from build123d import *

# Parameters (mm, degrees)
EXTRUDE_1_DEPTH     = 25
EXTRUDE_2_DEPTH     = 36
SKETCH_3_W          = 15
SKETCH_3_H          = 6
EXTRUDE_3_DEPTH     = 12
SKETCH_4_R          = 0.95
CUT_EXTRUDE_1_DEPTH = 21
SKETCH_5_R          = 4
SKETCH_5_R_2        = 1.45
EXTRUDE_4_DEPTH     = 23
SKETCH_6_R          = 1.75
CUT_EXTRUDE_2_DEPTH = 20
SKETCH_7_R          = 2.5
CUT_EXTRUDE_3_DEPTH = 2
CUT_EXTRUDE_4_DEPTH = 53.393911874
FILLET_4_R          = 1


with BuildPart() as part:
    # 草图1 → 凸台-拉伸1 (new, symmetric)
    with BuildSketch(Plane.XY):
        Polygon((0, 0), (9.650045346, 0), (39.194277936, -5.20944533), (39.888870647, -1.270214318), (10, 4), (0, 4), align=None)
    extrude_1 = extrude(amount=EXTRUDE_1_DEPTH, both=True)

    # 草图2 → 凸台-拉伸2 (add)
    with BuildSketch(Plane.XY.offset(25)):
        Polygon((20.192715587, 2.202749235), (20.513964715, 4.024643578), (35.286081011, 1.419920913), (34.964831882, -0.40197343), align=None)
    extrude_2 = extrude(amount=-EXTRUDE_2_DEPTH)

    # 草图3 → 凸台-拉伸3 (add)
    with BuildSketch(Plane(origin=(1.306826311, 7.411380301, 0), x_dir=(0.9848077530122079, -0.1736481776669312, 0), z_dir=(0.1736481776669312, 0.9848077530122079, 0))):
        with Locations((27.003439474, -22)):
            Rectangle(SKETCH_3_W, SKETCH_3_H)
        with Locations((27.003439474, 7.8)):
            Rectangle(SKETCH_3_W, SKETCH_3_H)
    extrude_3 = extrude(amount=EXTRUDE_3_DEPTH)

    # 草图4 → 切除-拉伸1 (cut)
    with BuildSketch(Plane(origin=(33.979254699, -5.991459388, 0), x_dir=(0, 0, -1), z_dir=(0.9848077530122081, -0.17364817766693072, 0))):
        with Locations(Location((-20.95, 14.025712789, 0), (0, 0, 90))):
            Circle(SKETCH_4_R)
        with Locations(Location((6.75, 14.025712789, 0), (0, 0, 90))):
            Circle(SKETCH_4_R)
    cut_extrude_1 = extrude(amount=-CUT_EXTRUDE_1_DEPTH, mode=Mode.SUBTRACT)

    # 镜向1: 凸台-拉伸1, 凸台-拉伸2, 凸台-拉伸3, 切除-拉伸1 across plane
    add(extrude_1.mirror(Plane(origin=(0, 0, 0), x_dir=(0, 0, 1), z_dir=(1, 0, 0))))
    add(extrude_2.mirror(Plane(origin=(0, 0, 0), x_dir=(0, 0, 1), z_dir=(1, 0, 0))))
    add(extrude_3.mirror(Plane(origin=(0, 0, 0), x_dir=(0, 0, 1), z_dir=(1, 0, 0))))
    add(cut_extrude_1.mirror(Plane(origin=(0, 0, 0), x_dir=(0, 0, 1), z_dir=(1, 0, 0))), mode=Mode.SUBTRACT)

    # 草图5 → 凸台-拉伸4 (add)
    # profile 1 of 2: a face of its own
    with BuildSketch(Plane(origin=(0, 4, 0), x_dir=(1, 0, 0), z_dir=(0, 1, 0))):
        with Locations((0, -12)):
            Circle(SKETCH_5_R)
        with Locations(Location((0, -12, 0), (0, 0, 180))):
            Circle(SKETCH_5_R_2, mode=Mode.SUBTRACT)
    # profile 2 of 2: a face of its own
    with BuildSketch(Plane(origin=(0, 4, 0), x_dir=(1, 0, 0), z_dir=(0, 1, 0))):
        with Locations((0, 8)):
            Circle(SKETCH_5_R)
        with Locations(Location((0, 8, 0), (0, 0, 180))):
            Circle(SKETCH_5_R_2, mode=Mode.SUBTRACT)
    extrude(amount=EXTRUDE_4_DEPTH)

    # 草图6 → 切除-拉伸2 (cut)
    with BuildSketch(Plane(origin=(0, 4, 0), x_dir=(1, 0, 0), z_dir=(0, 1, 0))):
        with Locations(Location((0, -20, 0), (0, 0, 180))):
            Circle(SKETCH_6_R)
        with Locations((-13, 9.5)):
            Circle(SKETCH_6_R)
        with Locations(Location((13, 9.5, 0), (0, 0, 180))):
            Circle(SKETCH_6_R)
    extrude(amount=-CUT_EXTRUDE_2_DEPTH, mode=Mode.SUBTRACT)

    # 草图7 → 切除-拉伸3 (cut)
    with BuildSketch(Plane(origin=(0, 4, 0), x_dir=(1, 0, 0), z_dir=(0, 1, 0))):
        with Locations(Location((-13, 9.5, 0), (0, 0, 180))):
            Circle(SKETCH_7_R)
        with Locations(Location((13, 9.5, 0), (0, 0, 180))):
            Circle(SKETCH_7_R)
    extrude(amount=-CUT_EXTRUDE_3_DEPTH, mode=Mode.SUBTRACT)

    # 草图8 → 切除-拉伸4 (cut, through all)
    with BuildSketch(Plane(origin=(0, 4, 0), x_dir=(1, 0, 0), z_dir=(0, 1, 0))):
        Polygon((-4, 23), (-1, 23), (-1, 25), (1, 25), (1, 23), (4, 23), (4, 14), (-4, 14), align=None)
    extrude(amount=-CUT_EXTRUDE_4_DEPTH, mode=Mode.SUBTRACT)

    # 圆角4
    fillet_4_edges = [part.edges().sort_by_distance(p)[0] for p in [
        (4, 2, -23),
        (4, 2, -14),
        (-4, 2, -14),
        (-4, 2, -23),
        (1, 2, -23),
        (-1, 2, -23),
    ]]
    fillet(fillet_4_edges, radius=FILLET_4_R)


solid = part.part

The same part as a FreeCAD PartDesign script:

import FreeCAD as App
import Part
import Sketcher
Q = App.Units.Quantity


def edges_at(feature, points):
    """Names of the edges that pass closest to the given points."""
    edges = feature.Shape.Edges
    near = lambda p: min(range(len(edges)), key=lambda i: edges[i].distToShape(Part.Vertex(*p))[0])
    return sorted({f"Edge{near(p) + 1}" for p in points})

doc = App.newDocument("Part")
body = doc.addObject("PartDesign::Body", "Body")

sketch1 = body.newObject("Sketcher::SketchObject", "Sketch")
sketch1.AttachmentSupport = (doc.getObject("XY_Plane"), [""])
sketch1.MapMode = "FlatFace"
sketch1.addGeometry(Part.LineSegment(App.Vector(0, 0, 0), App.Vector(9.7, 0, 0)), False)
sketch1.addGeometry(Part.LineSegment(App.Vector(9.7, 0, 0), App.Vector(39.2, -5.2, 0)), False)
sketch1.addGeometry(Part.LineSegment(App.Vector(39.2, -5.2, 0), App.Vector(39.9, -1.3, 0)), False)
sketch1.addGeometry(Part.LineSegment(App.Vector(39.9, -1.3, 0), App.Vector(10, 4, 0)), False)
sketch1.addGeometry(Part.LineSegment(App.Vector(10, 4, 0), App.Vector(0, 4, 0)), False)
sketch1.addGeometry(Part.LineSegment(App.Vector(0, 4, 0), App.Vector(0, 0, 0)), False)
sketch1.addConstraint(Sketcher.Constraint("Coincident", 0, 2, 1, 1))
sketch1.addConstraint(Sketcher.Constraint("Coincident", 1, 2, 2, 1))
sketch1.addConstraint(Sketcher.Constraint("Coincident", 2, 2, 3, 1))
sketch1.addConstraint(Sketcher.Constraint("Coincident", 3, 2, 4, 1))
sketch1.addConstraint(Sketcher.Constraint("Coincident", 4, 2, 5, 1))
sketch1.addConstraint(Sketcher.Constraint("Coincident", 5, 2, 0, 1))
sketch1.addConstraint(Sketcher.Constraint("Horizontal", 0))
sketch1.addConstraint(Sketcher.Constraint("Horizontal", 4))
sketch1.addConstraint(Sketcher.Constraint("Vertical", 5))
sketch1.addConstraint(Sketcher.Constraint("Coincident", 5, 2, -1, 1))
sketch1.addConstraint(Sketcher.Constraint("Perpendicular", 1, 2))
sketch1.addConstraint(Sketcher.Constraint("Perpendicular", 2, 3))
sketch1.addConstraint(Sketcher.Constraint("DistanceX", 4, 2, 4, 1, Q("10 mm")))
sketch1.addConstraint(Sketcher.Constraint("DistanceY", 5, 2, 5, 1, Q("4 mm")))
sketch1.addConstraint(Sketcher.Constraint("Angle", 1, Q("-10 deg")))
sketch1.addConstraint(Sketcher.Constraint("Distance", 1, Q("30 mm")))
sketch1.addConstraint(Sketcher.Constraint("Distance", 2, Q("4 mm")))
pad1 = body.newObject("PartDesign::Pad", "Pad")
pad1.Profile = sketch1
pad1.Length = 50
pad1.Midplane = True

sketch2 = body.newObject("Sketcher::SketchObject", "Sketch001")
sketch2.AttachmentSupport = (doc.getObject("XY_Plane"), [""])
sketch2.MapMode = "FlatFace"
sketch2.AttachmentOffset = App.Placement(App.Vector(0, 0, 25), App.Rotation())
sketch2.addGeometry(Part.LineSegment(App.Vector(20.5, 4, 0), App.Vector(20.2, 2.2, 0)), False)
sketch2.addGeometry(Part.LineSegment(App.Vector(20.2, 2.2, 0), App.Vector(35, -0.4, 0)), False)
sketch2.addGeometry(Part.LineSegment(App.Vector(35, -0.4, 0), App.Vector(35.3, 1.4, 0)), False)
sketch2.addGeometry(Part.LineSegment(App.Vector(35.3, 1.4, 0), App.Vector(20.5, 4, 0)), False)
sketch2.addConstraint(Sketcher.Constraint("Coincident", 0, 2, 1, 1))
sketch2.addConstraint(Sketcher.Constraint("Coincident", 1, 2, 2, 1))
sketch2.addConstraint(Sketcher.Constraint("Coincident", 2, 2, 3, 1))
sketch2.addConstraint(Sketcher.Constraint("Coincident", 3, 2, 0, 1))
sketch2.addConstraint(Sketcher.Constraint("Perpendicular", 0, 1))
sketch2.addConstraint(Sketcher.Constraint("Perpendicular", 1, 2))
sketch2.addConstraint(Sketcher.Constraint("Perpendicular", 2, 3))
sketch2.addConstraint(Sketcher.Constraint("Angle", 0, Q("-100 deg")))
sketch2.addConstraint(Sketcher.Constraint("Distance", 1, Q("15 mm")))
sketch2.addConstraint(Sketcher.Constraint("Distance", 0, Q("1.85 mm")))
sketch2.addConstraint(Sketcher.Constraint("DistanceY", -1, 1, 0, 2, Q("2.202749 mm")))
sketch2.addConstraint(Sketcher.Constraint("DistanceX", -1, 1, 1, 2, Q("34.964832 mm")))
pad2 = body.newObject("PartDesign::Pad", "Pad001")
pad2.Profile = sketch2
pad2.Length = 36
pad2.Reversed = True

sketch3 = body.newObject("Sketcher::SketchObject", "Sketch002")
sketch3.Placement = App.Placement(App.Vector(1.306826, 7.41138, 0), App.Rotation(App.Vector(0.984807753, -0.173648178, 0), App.Vector(0, 0, -1), App.Vector(0.173648178, 0.984807753, 0), "ZXY"))
sketch3.addGeometry(Part.LineSegment(App.Vector(20, -19, 0), App.Vector(20, -25, 0)), False)
sketch3.addGeometry(Part.LineSegment(App.Vector(20, -25, 0), App.Vector(35, -25, 0)), False)
sketch3.addGeometry(Part.LineSegment(App.Vector(35, -25, 0), App.Vector(35, -19, 0)), False)
sketch3.addGeometry(Part.LineSegment(App.Vector(35, -19, 0), App.Vector(20, -19, 0)), False)
sketch3.addGeometry(Part.LineSegment(App.Vector(20, 11, 0), App.Vector(20, 5, 0)), False)
sketch3.addGeometry(Part.LineSegment(App.Vector(20, 5, 0), App.Vector(35, 5, 0)), False)
sketch3.addGeometry(Part.LineSegment(App.Vector(35, 5, 0), App.Vector(35, 11, 0)), False)
sketch3.addGeometry(Part.LineSegment(App.Vector(35, 11, 0), App.Vector(20, 11, 0)), False)
sketch3.addConstraint(Sketcher.Constraint("Coincident", 0, 2, 1, 1))
sketch3.addConstraint(Sketcher.Constraint("Coincident", 1, 2, 2, 1))
sketch3.addConstraint(Sketcher.Constraint("Coincident", 2, 2, 3, 1))
sketch3.addConstraint(Sketcher.Constraint("Coincident", 3, 2, 0, 1))
sketch3.addConstraint(Sketcher.Constraint("Coincident", 4, 2, 5, 1))
sketch3.addConstraint(Sketcher.Constraint("Coincident", 5, 2, 6, 1))
sketch3.addConstraint(Sketcher.Constraint("Coincident", 6, 2, 7, 1))
sketch3.addConstraint(Sketcher.Constraint("Coincident", 7, 2, 4, 1))
sketch3.addConstraint(Sketcher.Constraint("Vertical", 0))
sketch3.addConstraint(Sketcher.Constraint("Horizontal", 1))
sketch3.addConstraint(Sketcher.Constraint("Vertical", 2))
sketch3.addConstraint(Sketcher.Constraint("Horizontal", 3))
sketch3.addConstraint(Sketcher.Constraint("Vertical", 4))
sketch3.addConstraint(Sketcher.Constraint("Horizontal", 5))
sketch3.addConstraint(Sketcher.Constraint("Vertical", 6))
sketch3.addConstraint(Sketcher.Constraint("Horizontal", 7))
sketch3.addConstraint(Sketcher.Constraint("Vertical", 3, 2, 4, 2))
sketch3.addConstraint(Sketcher.Constraint("Vertical", 2, 2, 5, 2))
sketch3.addConstraint(Sketcher.Constraint("Equal", 2, 4))
sketch3.addConstraint(Sketcher.Constraint("DistanceX", 1, 1, 1, 2, Q("15 mm")))
sketch3.addConstraint(Sketcher.Constraint("DistanceY", 0, 2, 0, 1, Q("6 mm")))
sketch3.addConstraint(Sketcher.Constraint("DistanceY", 0, 2, -1, 1, Q("25 mm")))
sketch3.addConstraint(Sketcher.Constraint("DistanceY", -1, 1, 4, 2, Q("4.8 mm")))
sketch3.addConstraint(Sketcher.Constraint("DistanceX", -1, 1, 0, 2, Q("19.503439 mm")))
pad3 = body.newObject("PartDesign::Pad", "Pad002")
pad3.Profile = sketch3
pad3.Length = 12

sketch4 = body.newObject("Sketcher::SketchObject", "Sketch003")
sketch4.Placement = App.Placement(App.Vector(33.979255, -5.991459, 0), App.Rotation(App.Vector(0, 0, -1), App.Vector(0.173648178, 0.984807753, 0), App.Vector(0.984807753, -0.173648178, 0), "ZXY"))
sketch4.addGeometry(Part.Circle(App.Vector(-20.9, 14, 0), App.Vector(0, 0, 1), 0.9), False)
sketch4.addGeometry(Part.Circle(App.Vector(6.8, 14, 0), App.Vector(0, 0, 1), 0.9), False)
sketch4.addConstraint(Sketcher.Constraint("Equal", 0, 1))
sketch4.addConstraint(Sketcher.Constraint("Horizontal", 0, 3, 1, 3))
sketch4.addConstraint(Sketcher.Constraint("Diameter", 0, Q("1.9 mm")))
sketch4.addConstraint(Sketcher.Constraint("DistanceX", 0, 3, 1, 3, Q("27.7 mm")))
sketch4.addConstraint(Sketcher.Constraint("DistanceX", 0, 3, -1, 1, Q("20.95 mm")))
sketch4.addConstraint(Sketcher.Constraint("DistanceY", -1, 1, 0, 3, Q("14.025713 mm")))
pocket1 = body.newObject("PartDesign::Pocket", "Pocket")
pocket1.Profile = sketch4
pocket1.Length = 21
doc.recompute()

mirrored = body.newObject("PartDesign::Mirrored", "Mirrored")
mirrored.Originals = [pad1, pad2, pad3, pocket1]
mirrored.MirrorPlane = (doc.getObject("YZ_Plane"), [""])
body.Tip = mirrored

sketch5 = body.newObject("Sketcher::SketchObject", "Sketch004")
sketch5.AttachmentSupport = (doc.getObject("XZ_Plane"), [""])
sketch5.MapMode = "FlatFace"
sketch5.AttachmentOffset = App.Placement(App.Vector(0, 0, -4), App.Rotation())
sketch5.addGeometry(Part.Circle(App.Vector(0, 12, 0), App.Vector(0, 0, 1), 4), False)
sketch5.addGeometry(Part.Circle(App.Vector(0, 12, 0), App.Vector(0, 0, 1), 1.4), False)
sketch5.addGeometry(Part.Circle(App.Vector(0, -8, 0), App.Vector(0, 0, 1), 4), False)
sketch5.addGeometry(Part.Circle(App.Vector(0, -8, 0), App.Vector(0, 0, 1), 1.4), False)
sketch5.addConstraint(Sketcher.Constraint("Coincident", 1, 3, 0, 3))
sketch5.addConstraint(Sketcher.Constraint("Coincident", 3, 3, 2, 3))
sketch5.addConstraint(Sketcher.Constraint("Equal", 0, 2))
sketch5.addConstraint(Sketcher.Constraint("Equal", 1, 3))
sketch5.addConstraint(Sketcher.Constraint("PointOnObject", 0, 3, -2))
sketch5.addConstraint(Sketcher.Constraint("PointOnObject", 2, 3, -2))
sketch5.addConstraint(Sketcher.Constraint("Diameter", 0, Q("8 mm")))
sketch5.addConstraint(Sketcher.Constraint("Diameter", 1, Q("2.9 mm")))
sketch5.addConstraint(Sketcher.Constraint("DistanceY", -1, 1, 0, 3, Q("12 mm")))
sketch5.addConstraint(Sketcher.Constraint("DistanceY", 2, 3, -1, 1, Q("8 mm")))
pad4 = body.newObject("PartDesign::Pad", "Pad003")
pad4.Profile = sketch5
pad4.Length = 23
pad4.Reversed = True

sketch6 = body.newObject("Sketcher::SketchObject", "Sketch005")
sketch6.AttachmentSupport = (doc.getObject("XZ_Plane"), [""])
sketch6.MapMode = "FlatFace"
sketch6.AttachmentOffset = App.Placement(App.Vector(0, 0, -4), App.Rotation())
sketch6.addGeometry(Part.Circle(App.Vector(0, 20, 0), App.Vector(0, 0, 1), 1.8), False)
sketch6.addGeometry(Part.Circle(App.Vector(-13, -9.5, 0), App.Vector(0, 0, 1), 1.8), False)
sketch6.addGeometry(Part.Circle(App.Vector(13, -9.5, 0), App.Vector(0, 0, 1), 1.8), False)
sketch6.addConstraint(Sketcher.Constraint("Equal", 0, 1))
sketch6.addConstraint(Sketcher.Constraint("Equal", 1, 2))
sketch6.addConstraint(Sketcher.Constraint("Symmetric", 1, 3, 2, 3, -2))
sketch6.addConstraint(Sketcher.Constraint("PointOnObject", 0, 3, -2))
sketch6.addConstraint(Sketcher.Constraint("Diameter", 0, Q("3.5 mm")))
sketch6.addConstraint(Sketcher.Constraint("DistanceY", -1, 1, 0, 3, Q("20 mm")))
sketch6.addConstraint(Sketcher.Constraint("DistanceX", 1, 3, -1, 1, Q("13 mm")))
sketch6.addConstraint(Sketcher.Constraint("DistanceY", 1, 3, -1, 1, Q("9.5 mm")))
pocket2 = body.newObject("PartDesign::Pocket", "Pocket001")
pocket2.Profile = sketch6
pocket2.Length = 20
pocket2.Reversed = True

sketch7 = body.newObject("Sketcher::SketchObject", "Sketch006")
sketch7.AttachmentSupport = (doc.getObject("XZ_Plane"), [""])
sketch7.MapMode = "FlatFace"
sketch7.AttachmentOffset = App.Placement(App.Vector(0, 0, -4), App.Rotation())
sketch7.addGeometry(Part.Circle(App.Vector(-13, -9.5, 0), App.Vector(0, 0, 1), 2.5), False)
sketch7.addGeometry(Part.Circle(App.Vector(13, -9.5, 0), App.Vector(0, 0, 1), 2.5), False)
sketch7.addConstraint(Sketcher.Constraint("Equal", 0, 1))
sketch7.addConstraint(Sketcher.Constraint("Symmetric", 0, 3, 1, 3, -2))
sketch7.addConstraint(Sketcher.Constraint("Diameter", 0, Q("5 mm")))
sketch7.addConstraint(Sketcher.Constraint("DistanceX", 0, 3, -1, 1, Q("13 mm")))
sketch7.addConstraint(Sketcher.Constraint("DistanceY", 0, 3, -1, 1, Q("9.5 mm")))
pocket3 = body.newObject("PartDesign::Pocket", "Pocket002")
pocket3.Profile = sketch7
pocket3.Length = 2
pocket3.Reversed = True

sketch8 = body.newObject("Sketcher::SketchObject", "Sketch007")
sketch8.AttachmentSupport = (doc.getObject("XZ_Plane"), [""])
sketch8.MapMode = "FlatFace"
sketch8.AttachmentOffset = App.Placement(App.Vector(0, 0, -4), App.Rotation())
sketch8.addGeometry(Part.LineSegment(App.Vector(-1, -23, 0), App.Vector(-4, -23, 0)), False)
sketch8.addGeometry(Part.LineSegment(App.Vector(-4, -23, 0), App.Vector(-4, -14, 0)), False)
sketch8.addGeometry(Part.LineSegment(App.Vector(-4, -14, 0), App.Vector(4, -14, 0)), False)
sketch8.addGeometry(Part.LineSegment(App.Vector(4, -14, 0), App.Vector(4, -23, 0)), False)
sketch8.addGeometry(Part.LineSegment(App.Vector(4, -23, 0), App.Vector(1, -23, 0)), False)
sketch8.addGeometry(Part.LineSegment(App.Vector(1, -23, 0), App.Vector(1, -25, 0)), False)
sketch8.addGeometry(Part.LineSegment(App.Vector(1, -25, 0), App.Vector(-1, -25, 0)), False)
sketch8.addGeometry(Part.LineSegment(App.Vector(-1, -25, 0), App.Vector(-1, -23, 0)), False)
sketch8.addConstraint(Sketcher.Constraint("Coincident", 0, 2, 1, 1))
sketch8.addConstraint(Sketcher.Constraint("Coincident", 1, 2, 2, 1))
sketch8.addConstraint(Sketcher.Constraint("Coincident", 2, 2, 3, 1))
sketch8.addConstraint(Sketcher.Constraint("Coincident", 3, 2, 4, 1))
sketch8.addConstraint(Sketcher.Constraint("Coincident", 4, 2, 5, 1))
sketch8.addConstraint(Sketcher.Constraint("Coincident", 5, 2, 6, 1))
sketch8.addConstraint(Sketcher.Constraint("Coincident", 6, 2, 7, 1))
sketch8.addConstraint(Sketcher.Constraint("Coincident", 7, 2, 0, 1))
sketch8.addConstraint(Sketcher.Constraint("Horizontal", 0))
sketch8.addConstraint(Sketcher.Constraint("Vertical", 1))
sketch8.addConstraint(Sketcher.Constraint("Horizontal", 2))
sketch8.addConstraint(Sketcher.Constraint("Vertical", 3))
sketch8.addConstraint(Sketcher.Constraint("Horizontal", 4))
sketch8.addConstraint(Sketcher.Constraint("Vertical", 5))
sketch8.addConstraint(Sketcher.Constraint("Horizontal", 6))
sketch8.addConstraint(Sketcher.Constraint("Vertical", 7))
sketch8.addConstraint(Sketcher.Constraint("Symmetric", 0, 2, 3, 2, -2))
sketch8.addConstraint(Sketcher.Constraint("Equal", 0, 4))
sketch8.addConstraint(Sketcher.Constraint("Equal", 6, 5))
sketch8.addConstraint(Sketcher.Constraint("DistanceX", 0, 2, 0, 1, Q("3 mm")))
sketch8.addConstraint(Sketcher.Constraint("DistanceX", 2, 1, 2, 2, Q("8 mm")))
sketch8.addConstraint(Sketcher.Constraint("DistanceY", 1, 1, 1, 2, Q("9 mm")))
sketch8.addConstraint(Sketcher.Constraint("DistanceY", 0, 2, -1, 1, Q("23 mm")))
pocket4 = body.newObject("PartDesign::Pocket", "Pocket003")
pocket4.Profile = sketch8
pocket4.Type = "ThroughAll"
pocket4.Reversed = True
doc.recompute()

fillet = body.newObject("PartDesign::Fillet", "Fillet")
fillet.Base = (pocket4, edges_at(pocket4, [
    (4, 2, -23),
    (4, 2, -14),
    (-4, 2, -14),
    (-4, 2, -23),
    (1, 2, -23),
    (-1, 2, -23),
]))
fillet.Radius = 1

doc.recompute()
